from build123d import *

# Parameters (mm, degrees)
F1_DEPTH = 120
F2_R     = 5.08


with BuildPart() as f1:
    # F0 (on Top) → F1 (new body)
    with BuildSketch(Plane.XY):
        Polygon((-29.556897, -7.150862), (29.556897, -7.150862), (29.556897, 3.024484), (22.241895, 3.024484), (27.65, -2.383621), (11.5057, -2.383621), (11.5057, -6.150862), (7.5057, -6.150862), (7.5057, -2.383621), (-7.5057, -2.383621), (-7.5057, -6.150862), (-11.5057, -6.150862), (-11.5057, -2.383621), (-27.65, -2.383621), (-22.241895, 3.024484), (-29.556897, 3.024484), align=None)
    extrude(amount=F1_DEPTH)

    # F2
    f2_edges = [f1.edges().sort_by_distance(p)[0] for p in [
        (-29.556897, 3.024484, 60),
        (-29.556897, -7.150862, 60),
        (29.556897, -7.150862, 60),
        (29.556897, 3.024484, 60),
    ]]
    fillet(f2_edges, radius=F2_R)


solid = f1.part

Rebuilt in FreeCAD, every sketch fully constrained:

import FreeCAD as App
import Part
import Sketcher


def edges_at(feature, points):
    """Names of the edges that pass closest to the given points."""
    edges = feature.Shape.Edges
    near = lambda p: min(range(len(edges)), key=lambda i: edges[i].distToShape(Part.Vertex(*p))[0])
    return sorted({f"Edge{near(p) + 1}" for p in points})

doc = App.newDocument("Part")
body = doc.addObject("PartDesign::Body", "Body")

sketch1 = body.newObject("Sketcher::SketchObject", "Sketch")
sketch1.AttachmentSupport = (doc.getObject("XY_Plane"), [""])
sketch1.MapMode = "FlatFace"
sketch1.addGeometry(Part.LineSegment(App.Vector(-29.6, -7.2, 0), App.Vector(29.6, -7.2, 0)), False)
sketch1.addGeometry(Part.LineSegment(App.Vector(29.6, -7.2, 0), App.Vector(29.6, 3, 0)), False)
sketch1.addGeometry(Part.LineSegment(App.Vector(29.6, 3, 0), App.Vector(22.2, 3, 0)), False)
sketch1.addGeometry(Part.LineSegment(App.Vector(22.2, 3, 0), App.Vector(27.6, -2.4, 0)), False)
sketch1.addGeometry(Part.LineSegment(App.Vector(27.6, -2.4, 0), App.Vector(11.5, -2.4, 0)), False)
sketch1.addGeometry(Part.LineSegment(App.Vector(11.5, -2.4, 0), App.Vector(11.5, -6.2, 0)), False)
sketch1.addGeometry(Part.LineSegment(App.Vector(11.5, -6.2, 0), App.Vector(7.5, -6.2, 0)), False)
sketch1.addGeometry(Part.LineSegment(App.Vector(7.5, -6.2, 0), App.Vector(7.5, -2.4, 0)), False)
sketch1.addGeometry(Part.LineSegment(App.Vector(7.5, -2.4, 0), App.Vector(-7.5, -2.4, 0)), False)
sketch1.addGeometry(Part.LineSegment(App.Vector(-7.5, -2.4, 0), App.Vector(-7.5, -6.2, 0)), False)
sketch1.addGeometry(Part.LineSegment(App.Vector(-7.5, -6.2, 0), App.Vector(-11.5, -6.2, 0)), False)
sketch1.addGeometry(Part.LineSegment(App.Vector(-11.5, -6.2, 0), App.Vector(-11.5, -2.4, 0)), False)
sketch1.addGeometry(Part.LineSegment(App.Vector(-11.5, -2.4, 0), App.Vector(-27.6, -2.4, 0)), False)
sketch1.addGeometry(Part.LineSegment(App.Vector(-27.6, -2.4, 0), App.Vector(-22.2, 3, 0)), False)
sketch1.addGeometry(Part.LineSegment(App.Vector(-22.2, 3, 0), App.Vector(-29.6, 3, 0)), False)
sketch1.addGeometry(Part.LineSegment(App.Vector(-29.6, 3, 0), App.Vector(-29.6, -7.2, 0)), False)
sketch1.addConstraint(Sketcher.Constraint("Coincident", 0, 2, 1, 1))
sketch1.addConstraint(Sketcher.Constraint("Coincident", 1, 2, 2, 1))
sketch1.addConstraint(Sketcher.Constraint("Coincident", 2, 2, 3, 1))
sketch1.addConstraint(Sketcher.Constraint("Coincident", 3, 2, 4, 1))
sketch1.addConstraint(Sketcher.Constraint("Coincident", 4, 2, 5, 1))
sketch1.addConstraint(Sketcher.Constraint("Coincident", 5, 2, 6, 1))
sketch1.addConstraint(Sketcher.Constraint("Coincident", 6, 2, 7, 1))
sketch1.addConstraint(Sketcher.Constraint("Coincident", 7, 2, 8, 1))
sketch1.addConstraint(Sketcher.Constraint("Coincident", 8, 2, 9, 1))
sketch1.addConstraint(Sketcher.Constraint("Coincident", 9, 2, 10, 1))
sketch1.addConstraint(Sketcher.Constraint("Coincident", 10, 2, 11, 1))
sketch1.addConstraint(Sketcher.Constraint("Coincident", 11, 2, 12, 1))
sketch1.addConstraint(Sketcher.Constraint("Coincident", 12, 2, 13, 1))
sketch1.addConstraint(Sketcher.Constraint("Coincident", 13, 2, 14, 1))
sketch1.addConstraint(Sketcher.Constraint("Coincident", 14, 2, 15, 1))
sketch1.addConstraint(Sketcher.Constraint("Coincident", 15, 2, 0, 1))
sketch1.addConstraint(Sketcher.Constraint("Horizontal", 0))
sketch1.addConstraint(Sketcher.Constraint("Vertical", 1))
sketch1.addConstraint(Sketcher.Constraint("Horizontal", 2))
sketch1.addConstraint(Sketcher.Constraint("Horizontal", 4))
sketch1.addConstraint(Sketcher.Constraint("Vertical", 5))
sketch1.addConstraint(Sketcher.Constraint("Horizontal", 6))
sketch1.addConstraint(Sketcher.Constraint("Vertical", 7))
sketch1.addConstraint(Sketcher.Constraint("Horizontal", 8))
sketch1.addConstraint(Sketcher.Constraint("Vertical", 9))
sketch1.addConstraint(Sketcher.Constraint("Horizontal", 10))
sketch1.addConstraint(Sketcher.Constraint("Vertical", 11))
sketch1.addConstraint(Sketcher.Constraint("Horizontal", 12))
sketch1.addConstraint(Sketcher.Constraint("Horizontal", 14))
sketch1.addConstraint(Sketcher.Constraint("Vertical", 15))
sketch1.addConstraint(Sketcher.Constraint("Symmetric", 6, 2, 9, 2, -2))
sketch1.addConstraint(Sketcher.Constraint("Symmetric", 4, 2, 11, 2, -2))
sketch1.addConstraint(Sketcher.Constraint("Symmetric", 2, 2, 13, 2, -2))
sketch1.addConstraint(Sketcher.Constraint("Perpendicular", 3, 13))
sketch1.addConstraint(Sketcher.Constraint("Horizontal", 4, 2, 7, 2))
sketch1.addConstraint(Sketcher.Constraint("Equal", 4, 12))
sketch1.addConstraint(Sketcher.Constraint("Equal", 2, 14))
sketch1.addConstraint(Sketcher.Constraint("DistanceX", 6, 2, 6, 1, 4.0))
sketch1.addConstraint(Sketcher.Constraint("DistanceY", 0, 2, 5, 2, 1.0))
sketch1.addConstraint(Sketcher.Constraint("DistanceX", 2, 2, 2, 1, 7.315002))
sketch1.addConstraint(Sketcher.Constraint("DistanceX", -1, 1, 3, 2, 27.65))
sketch1.addConstraint(Sketcher.Constraint("DistanceX", 4, 2, 4, 1, 16.1443))
sketch1.addConstraint(Sketcher.Constraint("DistanceY", 5, 2, 5, 1, 3.767241))
sketch1.addConstraint(Sketcher.Constraint("DistanceX", 0, 1, 0, 2, 59.113794))
sketch1.addConstraint(Sketcher.Constraint("DistanceY", 3, 2, -1, 1, 2.383621))
pad1 = body.newObject("PartDesign::Pad", "Pad")
pad1.Profile = sketch1
pad1.Length = 120
doc.recompute()

fillet = body.newObject("PartDesign::Fillet", "Fillet")
fillet.Base = (pad1, edges_at(pad1, [
    (-29.557, 3.024, 60),
    (-29.557, -7.151, 60),
    (29.557, -7.151, 60),
    (29.557, 3.024, 60),
]))
fillet.Radius = 5.08

doc.recompute()
